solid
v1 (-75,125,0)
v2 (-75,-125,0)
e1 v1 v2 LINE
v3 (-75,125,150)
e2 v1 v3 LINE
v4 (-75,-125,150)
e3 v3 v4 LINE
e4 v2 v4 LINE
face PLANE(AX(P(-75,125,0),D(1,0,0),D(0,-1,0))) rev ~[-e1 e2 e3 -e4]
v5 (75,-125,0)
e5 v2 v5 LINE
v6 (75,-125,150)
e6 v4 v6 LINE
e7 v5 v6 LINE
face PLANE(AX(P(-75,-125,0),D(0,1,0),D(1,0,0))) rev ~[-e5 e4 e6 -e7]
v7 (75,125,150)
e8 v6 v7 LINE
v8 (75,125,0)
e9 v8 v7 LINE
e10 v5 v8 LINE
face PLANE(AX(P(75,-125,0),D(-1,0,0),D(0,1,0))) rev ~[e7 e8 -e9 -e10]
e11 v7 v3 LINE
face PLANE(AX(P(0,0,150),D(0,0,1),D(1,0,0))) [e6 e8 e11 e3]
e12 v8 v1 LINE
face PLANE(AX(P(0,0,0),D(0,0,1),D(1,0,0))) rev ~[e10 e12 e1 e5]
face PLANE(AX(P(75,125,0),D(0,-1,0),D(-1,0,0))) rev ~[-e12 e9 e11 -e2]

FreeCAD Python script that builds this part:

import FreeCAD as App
import Part
import Sketcher

V = App.Vector


def add_polygon(sketch, points):
    """Adds a closed chain of lines whose ends are joined by coincident constraints."""
    first, n = sketch.GeometryCount, len(points)
    for a, b in zip(points, points[1:] + points[:1]):
        sketch.addGeometry(Part.LineSegment(App.Vector(*a, 0), App.Vector(*b, 0)), False)
    for i in range(n):
        sketch.addConstraint(Sketcher.Constraint("Coincident", first + i, 2, first + (i + 1) % n, 1))

doc = App.newDocument("Part")
body = doc.addObject("PartDesign::Body", "Body")

# Sketch on XY plane
sketch1 = body.newObject("Sketcher::SketchObject", "Sketch")
sketch1.AttachmentSupport = (doc.getObject("XY_Plane"), [""])
sketch1.MapMode = "FlatFace"
add_polygon(sketch1, [(75, 125), (-75, 125), (-75, -125), (75, -125)])  # lines 0-3
sketch1.addConstraint([
    Sketcher.Constraint("Horizontal", 0),
    Sketcher.Constraint("Vertical", 1),
    Sketcher.Constraint("Horizontal", 2),
    Sketcher.Constraint("Vertical", 3),
    Sketcher.Constraint("Symmetric", 0, 2, 2, 2, -1, 1),
    Sketcher.Constraint("DistanceX", 0, 2, 0, 1, 150.0),
    Sketcher.Constraint("DistanceY", 1, 2, 1, 1, 250.0),
])
pad1 = body.newObject("PartDesign::Pad", "Pad")
pad1.Profile = sketch1
pad1.Length = 150

doc.recompute()
